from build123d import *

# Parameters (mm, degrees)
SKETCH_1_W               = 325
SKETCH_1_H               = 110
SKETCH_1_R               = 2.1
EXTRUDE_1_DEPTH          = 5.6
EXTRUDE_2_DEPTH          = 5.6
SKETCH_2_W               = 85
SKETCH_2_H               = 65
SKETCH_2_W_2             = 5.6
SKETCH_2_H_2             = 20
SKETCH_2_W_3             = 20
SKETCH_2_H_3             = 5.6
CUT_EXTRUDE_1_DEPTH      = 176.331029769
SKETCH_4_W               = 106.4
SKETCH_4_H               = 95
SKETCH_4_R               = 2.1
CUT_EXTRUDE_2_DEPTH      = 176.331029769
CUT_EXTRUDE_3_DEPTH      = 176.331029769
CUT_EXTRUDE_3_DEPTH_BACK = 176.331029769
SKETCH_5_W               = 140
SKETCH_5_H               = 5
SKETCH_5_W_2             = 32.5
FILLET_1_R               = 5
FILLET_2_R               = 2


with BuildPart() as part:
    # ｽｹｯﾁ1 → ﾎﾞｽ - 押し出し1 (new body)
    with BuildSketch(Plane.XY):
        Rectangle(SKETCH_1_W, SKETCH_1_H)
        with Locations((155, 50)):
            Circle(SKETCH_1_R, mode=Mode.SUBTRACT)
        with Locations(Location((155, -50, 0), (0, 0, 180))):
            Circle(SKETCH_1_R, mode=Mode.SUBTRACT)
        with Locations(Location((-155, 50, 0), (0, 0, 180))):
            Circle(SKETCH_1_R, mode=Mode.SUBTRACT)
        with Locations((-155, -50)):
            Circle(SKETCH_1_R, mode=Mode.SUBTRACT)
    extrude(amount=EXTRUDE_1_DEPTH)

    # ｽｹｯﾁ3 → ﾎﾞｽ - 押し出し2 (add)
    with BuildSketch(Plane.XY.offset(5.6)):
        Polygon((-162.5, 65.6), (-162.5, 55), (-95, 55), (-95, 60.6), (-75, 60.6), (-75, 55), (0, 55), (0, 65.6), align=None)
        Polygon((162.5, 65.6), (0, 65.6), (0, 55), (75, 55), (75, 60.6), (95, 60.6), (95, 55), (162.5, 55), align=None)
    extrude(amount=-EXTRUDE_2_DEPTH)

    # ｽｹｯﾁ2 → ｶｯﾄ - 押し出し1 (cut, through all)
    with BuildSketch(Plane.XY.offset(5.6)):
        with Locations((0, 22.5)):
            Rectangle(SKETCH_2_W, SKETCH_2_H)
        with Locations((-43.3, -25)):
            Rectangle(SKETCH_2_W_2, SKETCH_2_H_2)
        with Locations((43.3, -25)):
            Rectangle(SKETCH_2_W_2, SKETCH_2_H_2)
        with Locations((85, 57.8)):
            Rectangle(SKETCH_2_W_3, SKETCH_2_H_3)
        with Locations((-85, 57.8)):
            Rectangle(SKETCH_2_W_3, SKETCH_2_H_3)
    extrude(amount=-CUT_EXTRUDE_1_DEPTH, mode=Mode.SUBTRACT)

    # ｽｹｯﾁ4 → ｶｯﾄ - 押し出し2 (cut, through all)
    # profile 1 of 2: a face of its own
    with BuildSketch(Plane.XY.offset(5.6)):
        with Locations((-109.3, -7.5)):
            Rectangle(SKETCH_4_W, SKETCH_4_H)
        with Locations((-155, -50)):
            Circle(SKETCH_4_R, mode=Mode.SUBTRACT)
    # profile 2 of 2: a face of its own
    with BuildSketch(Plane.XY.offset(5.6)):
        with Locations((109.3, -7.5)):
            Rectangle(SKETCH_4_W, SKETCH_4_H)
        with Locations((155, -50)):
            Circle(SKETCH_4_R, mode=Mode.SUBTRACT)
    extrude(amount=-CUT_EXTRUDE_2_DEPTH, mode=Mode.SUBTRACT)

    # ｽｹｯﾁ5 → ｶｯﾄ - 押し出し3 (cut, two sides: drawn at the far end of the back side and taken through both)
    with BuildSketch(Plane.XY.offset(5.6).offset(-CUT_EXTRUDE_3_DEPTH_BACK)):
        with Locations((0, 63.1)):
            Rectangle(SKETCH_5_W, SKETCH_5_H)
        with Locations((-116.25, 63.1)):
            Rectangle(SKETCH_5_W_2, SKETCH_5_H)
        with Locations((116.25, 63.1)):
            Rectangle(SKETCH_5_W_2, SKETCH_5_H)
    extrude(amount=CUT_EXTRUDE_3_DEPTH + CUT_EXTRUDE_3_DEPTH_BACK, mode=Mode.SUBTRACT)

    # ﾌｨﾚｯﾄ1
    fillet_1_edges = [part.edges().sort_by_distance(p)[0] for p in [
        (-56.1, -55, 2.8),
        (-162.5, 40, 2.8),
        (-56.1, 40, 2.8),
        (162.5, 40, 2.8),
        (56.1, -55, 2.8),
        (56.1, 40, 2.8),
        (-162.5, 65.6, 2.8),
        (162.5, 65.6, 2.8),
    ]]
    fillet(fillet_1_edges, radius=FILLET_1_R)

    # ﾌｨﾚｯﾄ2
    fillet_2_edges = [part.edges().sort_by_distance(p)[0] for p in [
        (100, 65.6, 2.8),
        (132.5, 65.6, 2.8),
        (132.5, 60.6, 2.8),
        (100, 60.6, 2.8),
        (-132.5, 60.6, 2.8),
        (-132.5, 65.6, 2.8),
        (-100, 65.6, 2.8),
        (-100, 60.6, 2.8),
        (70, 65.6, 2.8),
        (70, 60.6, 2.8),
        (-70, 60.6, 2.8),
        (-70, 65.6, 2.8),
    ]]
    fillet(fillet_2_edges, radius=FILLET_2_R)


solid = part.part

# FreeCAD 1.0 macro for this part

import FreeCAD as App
import Part
import Sketcher

V = App.Vector


def edges_at(feature, points):
    """Names of the edges that pass closest to the given points."""
    edges = feature.Shape.Edges
    near = lambda p: min(range(len(edges)), key=lambda i: edges[i].distToShape(Part.Vertex(*p))[0])
    return sorted({f"Edge{near(p) + 1}" for p in points})


def add_polygon(sketch, points):
    """Adds a closed chain of lines whose ends are joined by coincident constraints."""
    first, n = sketch.GeometryCount, len(points)
    for a, b in zip(points, points[1:] + points[:1]):
        sketch.addGeometry(Part.LineSegment(App.Vector(*a, 0), App.Vector(*b, 0)), False)
    for i in range(n):
        sketch.addConstraint(Sketcher.Constraint("Coincident", first + i, 2, first + (i + 1) % n, 1))

doc = App.newDocument("Part")
params = doc.addObject("Spreadsheet::Sheet", "Params")
for row, (alias, value) in enumerate([
    ("sketch1_diameter", "4.2 mm"),
    ("sketch1_width", "325 mm"),
    ("sketch1_height", "110 mm"),
    ("pad1_length", "5.6 mm"),
    ("sketch2_width", "20 mm"),
    ("sketch2_width2", "150 mm"),
    ("sketch2_width3", "325 mm"),
    ("sketch2_height", "10.6 mm"),
    ("sketch2_height2", "5.6 mm"),
    ("pad2_length", "5.6 mm"),
    ("sketch3_width", "85 mm"),
    ("sketch3_width2", "20 mm"),
    ("sketch3_height", "65 mm"),
    ("sketch3_width3", "5.6 mm"),
    ("sketch4_diameter", "4.2 mm"),
    ("sketch4_height", "95 mm"),
    ("sketch4_width", "106.4 mm"),
    ("pocket2_length", "176.33103 mm"),
    ("sketch5_width", "140 mm"),
    ("sketch5_height", "5 mm"),
    ("sketch5_width2", "32.5 mm"),
    ("fillet_radius", "5 mm"),
    ("fillet2_radius", "2 mm"),
], start=1):
    params.set(f"A{row}", alias)
    params.set(f"B{row}", "=" + value)
    params.setAlias(f"B{row}", alias)

body = doc.addObject("PartDesign::Body", "Body")

# Sketch on XY plane
sketch1 = body.newObject("Sketcher::SketchObject", "Sketch")
sketch1.AttachmentSupport = (doc.getObject("XY_Plane"), [""])
sketch1.MapMode = "FlatFace"
add_polygon(sketch1, [(-162.5, 55), (-162.5, -55), (162.5, -55), (162.5, 55)])  # lines 0-3
sketch1.addGeometry(Part.Circle(V(-155, -50, 0), V(0, 0, 1), 2.1), False)  # 4
sketch1.addGeometry(Part.Circle(V(155, -50, 0), V(0, 0, 1), 2.1), False)  # 5
sketch1.addGeometry(Part.Circle(V(-155, 50, 0), V(0, 0, 1), 2.1), False)  # 6
sketch1.addGeometry(Part.Circle(V(155, 50, 0), V(0, 0, 1), 2.1), False)  # 7
sketch1.addConstraint([
    Sketcher.Constraint("Vertical", 0),
    Sketcher.Constraint("Horizontal", 1),
    Sketcher.Constraint("Vertical", 2),
    Sketcher.Constraint("Horizontal", 3),
    Sketcher.Constraint("Equal", 4, 5),
    Sketcher.Constraint("Equal", 5, 6),
    Sketcher.Constraint("Equal", 6, 7),
    Sketcher.Constraint("Symmetric", 5, 3, 6, 3, -1, 1),
    Sketcher.Constraint("Symmetric", 4, 3, 7, 3, -1, 1),
    Sketcher.Constraint("Symmetric", 0, 2, 2, 2, -1, 1),
    Sketcher.Constraint("Symmetric", 4, 3, 5, 3, -2),
    Sketcher.Constraint("Diameter", 4, 4.2),
    Sketcher.Constraint("DistanceX", 1, 1, 1, 2, 325.0),
    Sketcher.Constraint("DistanceY", 0, 2, 0, 1, 110.0),
    Sketcher.Constraint("DistanceX", 4, 3, -1, 1, 155.0),
    Sketcher.Constraint("DistanceY", 4, 3, -1, 1, 50.0),
])
sketch1.setExpression("Constraints[15]", "Params.sketch1_diameter")
sketch1.setExpression("Constraints[16]", "Params.sketch1_width")
sketch1.setExpression("Constraints[17]", "Params.sketch1_height")
pad1 = body.newObject("PartDesign::Pad", "Pad")
pad1.Profile = sketch1
pad1.setExpression("Length", "Params.pad1_length")

# Sketch on XY plane
sketch2 = body.newObject("Sketcher::SketchObject", "Sketch001")
sketch2.AttachmentSupport = (doc.getObject("XY_Plane"), [""])
sketch2.MapMode = "FlatFace"
sketch2.AttachmentOffset = App.Placement(V(0, 0, 5.6), App.Rotation())
add_polygon(sketch2, [(-162.5, 65.6), (-162.5, 55), (-95, 55), (-95, 60.6), (-75, 60.6), (-75, 55), (75, 55), (75, 60.6), (95, 60.6), (95, 55), (162.5, 55), (162.5, 65.6)])  # lines 0-11
sketch2.addConstraint([
    Sketcher.Constraint("Vertical", 0),
    Sketcher.Constraint("Horizontal", 1),
    Sketcher.Constraint("Vertical", 2),
    Sketcher.Constraint("Horizontal", 3),
    Sketcher.Constraint("Vertical", 4),
    Sketcher.Constraint("Horizontal", 5),
    Sketcher.Constraint("Vertical", 6),
    Sketcher.Constraint("Horizontal", 7),
    Sketcher.Constraint("Vertical", 8),
    Sketcher.Constraint("Horizontal", 9),
    Sketcher.Constraint("Vertical", 10),
    Sketcher.Constraint("Horizontal", 11),
    Sketcher.Constraint("Symmetric", 3, 2, 6, 2, -2),
    Sketcher.Constraint("Symmetric", 1, 2, 8, 2, -2),
    Sketcher.Constraint("Horizontal", 1, 2, 4, 2),
    Sketcher.Constraint("Equal", 1, 9),
    Sketcher.Constraint("DistanceX", 3, 1, 3, 2, 20.0),
    Sketcher.Constraint("DistanceX", 5, 1, 5, 2, 150.0),
    Sketcher.Constraint("DistanceX", 11, 2, 11, 1, 325.0),
    Sketcher.Constraint("DistanceY", 0, 2, 0, 1, 10.6),
    Sketcher.Constraint("DistanceY", 2, 1, 2, 2, 5.6),
    Sketcher.Constraint("DistanceY", -1, 1, 0, 2, 55.0),
])
sketch2.setExpression("Constraints[28]", "Params.sketch2_width")
sketch2.setExpression("Constraints[29]", "Params.sketch2_width2")
sketch2.setExpression("Constraints[30]", "Params.sketch2_width3")
sketch2.setExpression("Constraints[31]", "Params.sketch2_height")
sketch2.setExpression("Constraints[32]", "Params.sketch2_height2")
pad2 = body.newObject("PartDesign::Pad", "Pad001")
pad2.Profile = sketch2
pad2.setExpression("Length", "Params.pad2_length")
pad2.Reversed = True

# Sketch on XY plane
sketch3 = body.newObject("Sketcher::SketchObject", "Sketch002")
sketch3.AttachmentSupport = (doc.getObject("XY_Plane"), [""])
sketch3.MapMode = "FlatFace"
sketch3.AttachmentOffset = App.Placement(V(0, 0, 5.6), App.Rotation())
add_polygon(sketch3, [(-42.5, 55), (-42.5, -10), (42.5, -10), (42.5, 55)])  # lines 0-3
add_polygon(sketch3, [(-46.1, -15), (-46.1, -35), (-40.5, -35), (-40.5, -15)])  # lines 4-7
add_polygon(sketch3, [(40.5, -15), (40.5, -35), (46.1, -35), (46.1, -15)])  # lines 8-11
add_polygon(sketch3, [(75, 60.6), (75, 55), (95, 55), (95, 60.6)])  # lines 12-15
add_polygon(sketch3, [(-95, 60.6), (-95, 55), (-75, 55), (-75, 60.6)])  # lines 16-19
sketch3.addConstraint([
    Sketcher.Constraint("Vertical", 0),
    Sketcher.Constraint("Horizontal", 1),
    Sketcher.Constraint("Vertical", 2),
    Sketcher.Constraint("Horizontal", 3),
    Sketcher.Constraint("Vertical", 4),
    Sketcher.Constraint("Horizontal", 5),
    Sketcher.Constraint("Vertical", 6),
    Sketcher.Constraint("Horizontal", 7),
    Sketcher.Constraint("Vertical", 8),
    Sketcher.Constraint("Horizontal", 9),
    Sketcher.Constraint("Vertical", 10),
    Sketcher.Constraint("Horizontal", 11),
    Sketcher.Constraint("Vertical", 12),
    Sketcher.Constraint("Horizontal", 13),
    Sketcher.Constraint("Vertical", 14),
    Sketcher.Constraint("Horizontal", 15),
    Sketcher.Constraint("Vertical", 16),
    Sketcher.Constraint("Horizontal", 17),
    Sketcher.Constraint("Vertical", 18),
    Sketcher.Constraint("Horizontal", 19),
    Sketcher.Constraint("Symmetric", 5, 2, 8, 2, -2),
    Sketcher.Constraint("Symmetric", 7, 2, 10, 2, -2),
    Sketcher.Constraint("Symmetric", 13, 2, 16, 2, -2),
    Sketcher.Constraint("Symmetric", 15, 2, 18, 2, -2),
    Sketcher.Constraint("Horizontal", 3, 2, 12, 2),
    Sketcher.Constraint("Equal", 19, 4),
    Sketcher.Constraint("Equal", 11, 12),
    Sketcher.Constraint("DistanceX", 1, 1, 1, 2, 85.0),
    Sketcher.Constraint("DistanceX", 13, 1, 13, 2, 20.0),
    Sketcher.Constraint("DistanceY", 0, 2, 0, 1, 65.0),
    Sketcher.Constraint("DistanceX", 5, 1, 5, 2, 5.6),
    Sketcher.Constraint("DistanceY", 0, 2, -1, 1, 10.0),
    Sketcher.Constraint("DistanceY", 4, 2, -1, 1, 35.0),
    Sketcher.Constraint("DistanceX", -1, 1, 12, 2, 75.0),
    Sketcher.Constraint("DistanceX", 0, 2, 5, 2, 2.0),
    Sketcher.Constraint("DistanceX", 8, 2, 1, 2, 2.0),
])
sketch3.setExpression("Constraints[47]", "Params.sketch3_width")
sketch3.setExpression("Constraints[48]", "Params.sketch3_width2")
sketch3.setExpression("Constraints[49]", "Params.sketch3_height")
sketch3.setExpression("Constraints[50]", "Params.sketch3_width3")
pocket1 = body.newObject("PartDesign::Pocket", "Pocket")
pocket1.Profile = sketch3
pocket1.Type = "ThroughAll"

# Sketch on XY plane
sketch4 = body.newObject("Sketcher::SketchObject", "Sketch003")
sketch4.AttachmentSupport = (doc.getObject("XY_Plane"), [""])
sketch4.MapMode = "FlatFace"
sketch4.AttachmentOffset = App.Placement(V(0, 0, 5.6), App.Rotation())
add_polygon(sketch4, [(-162.5, 40), (-162.5, -55), (-56.1, -55), (-56.1, 40)])  # lines 0-3
sketch4.addGeometry(Part.Circle(V(-155, -50, 0), V(0, 0, 1), 2.1), False)  # 4
add_polygon(sketch4, [(56.1, 40), (56.1, -55), (162.5, -55), (162.5, 40)])  # lines 5-8
sketch4.addGeometry(Part.Circle(V(155, -50, 0), V(0, 0, 1), 2.1), False)  # 9
sketch4.addConstraint([
    Sketcher.Constraint("Vertical", 0),
    Sketcher.Constraint("Horizontal", 1),
    Sketcher.Constraint("Vertical", 2),
    Sketcher.Constraint("Horizontal", 3),
    Sketcher.Constraint("Vertical", 5),
    Sketcher.Constraint("Horizontal", 6),
    Sketcher.Constraint("Vertical", 7),
    Sketcher.Constraint("Horizontal", 8),
    Sketcher.Constraint("Equal", 4, 9),
    Sketcher.Constraint("Symmetric", 4, 3, 9, 3, -2),
    Sketcher.Constraint("Symmetric", 1, 2, 5, 2, -2),
    Sketcher.Constraint("Symmetric", 3, 2, 7, 2, -2),
    Sketcher.Constraint("Diameter", 4, 4.2),
    Sketcher.Constraint("DistanceY", 0, 2, 0, 1, 95.0),
    Sketcher.Constraint("DistanceX", 1, 1, 1, 2, 106.4),
    Sketcher.Constraint("DistanceX", 4, 3, -1, 1, 155.0),
    Sketcher.Constraint("DistanceY", 4, 3, -1, 1, 50.0),
    Sketcher.Constraint("DistanceY", 0, 2, -1, 1, 55.0),
    Sketcher.Constraint("DistanceX", 0, 2, -1, 1, 162.5),
])
sketch4.setExpression("Constraints[20]", "Params.sketch4_diameter")
sketch4.setExpression("Constraints[21]", "Params.sketch4_height")
sketch4.setExpression("Constraints[22]", "Params.sketch4_width")
pocket2 = body.newObject("PartDesign::Pocket", "Pocket001")
pocket2.Profile = sketch4
pocket2.setExpression("Length", "Params.pocket2_length")

# Sketch on XY plane
sketch5 = body.newObject("Sketcher::SketchObject", "Sketch004")
sketch5.AttachmentSupport = (doc.getObject("XY_Plane"), [""])
sketch5.MapMode = "FlatFace"
sketch5.AttachmentOffset = App.Placement(V(0, 0, 5.6), App.Rotation())
add_polygon(sketch5, [(-70, 65.6), (-70, 60.6), (70, 60.6), (70, 65.6)])  # lines 0-3
add_polygon(sketch5, [(-132.5, 65.6), (-132.5, 60.6), (-100, 60.6), (-100, 65.6)])  # lines 4-7
add_polygon(sketch5, [(100, 65.6), (100, 60.6), (132.5, 60.6), (132.5, 65.6)])  # lines 8-11
sketch5.addConstraint([
    Sketcher.Constraint("Vertical", 0),
    Sketcher.Constraint("Horizontal", 1),
    Sketcher.Constraint("Vertical", 2),
    Sketcher.Constraint("Horizontal", 3),
    Sketcher.Constraint("Vertical", 4),
    Sketcher.Constraint("Horizontal", 5),
    Sketcher.Constraint("Vertical", 6),
    Sketcher.Constraint("Horizontal", 7),
    Sketcher.Constraint("Vertical", 8),
    Sketcher.Constraint("Horizontal", 9),
    Sketcher.Constraint("Vertical", 10),
    Sketcher.Constraint("Horizontal", 11),
    Sketcher.Constraint("Symmetric", 5, 2, 8, 2, -2),
    Sketcher.Constraint("Symmetric", 7, 2, 10, 2, -2),
    Sketcher.Constraint("Horizontal", 1, 2, 4, 2),
    Sketcher.Constraint("Horizontal", 3, 2, 6, 2),
    Sketcher.Constraint("DistanceX", 1, 1, 1, 2, 140.0),
    Sketcher.Constraint("DistanceY", 0, 2, 0, 1, 5.0),
    Sketcher.Constraint("DistanceX", 5, 1, 5, 2, 32.5),
    Sketcher.Constraint("DistanceX", 0, 2, -1, 1, 70.0),
    Sketcher.Constraint("DistanceX", 5, 2, -1, 1, 100.0),
    Sketcher.Constraint("DistanceY", -1, 1, 0, 2, 60.6),
])
sketch5.setExpression("Constraints[28]", "Params.sketch5_width")
sketch5.setExpression("Constraints[29]", "Params.sketch5_height")
sketch5.setExpression("Constraints[30]", "Params.sketch5_width2")
pocket3 = body.newObject("PartDesign::Pocket", "Pocket002")
pocket3.Profile = sketch5
pocket3.Type = "ThroughAll"
pocket3.Midplane = True
doc.recompute()

fillet = body.newObject("PartDesign::Fillet", "Fillet")
fillet.Base = (pocket3, edges_at(pocket3, [
    (-56.1, -55, 2.8),
    (-162.5, 40, 2.8),
    (-56.1, 40, 2.8),
    (162.5, 40, 2.8),
    (56.1, -55, 2.8),
    (56.1, 40, 2.8),
    (-162.5, 65.6, 2.8),
    (162.5, 65.6, 2.8),
]))
fillet.setExpression("Radius", "Params.fillet_radius")
doc.recompute()

fillet2 = body.newObject("PartDesign::Fillet", "Fillet001")
fillet2.Base = (fillet, edges_at(fillet, [
    (100, 65.6, 2.8),
    (132.5, 65.6, 2.8),
    (132.5, 60.6, 2.8),
    (100, 60.6, 2.8),
    (-132.5, 60.6, 2.8),
    (-132.5, 65.6, 2.8),
    (-100, 65.6, 2.8),
    (-100, 60.6, 2.8),
    (70, 65.6, 2.8),
    (70, 60.6, 2.8),
    (-70, 60.6, 2.8),
    (-70, 65.6, 2.8),
]))
fillet2.setExpression("Radius", "Params.fillet2_radius")

doc.recompute()
